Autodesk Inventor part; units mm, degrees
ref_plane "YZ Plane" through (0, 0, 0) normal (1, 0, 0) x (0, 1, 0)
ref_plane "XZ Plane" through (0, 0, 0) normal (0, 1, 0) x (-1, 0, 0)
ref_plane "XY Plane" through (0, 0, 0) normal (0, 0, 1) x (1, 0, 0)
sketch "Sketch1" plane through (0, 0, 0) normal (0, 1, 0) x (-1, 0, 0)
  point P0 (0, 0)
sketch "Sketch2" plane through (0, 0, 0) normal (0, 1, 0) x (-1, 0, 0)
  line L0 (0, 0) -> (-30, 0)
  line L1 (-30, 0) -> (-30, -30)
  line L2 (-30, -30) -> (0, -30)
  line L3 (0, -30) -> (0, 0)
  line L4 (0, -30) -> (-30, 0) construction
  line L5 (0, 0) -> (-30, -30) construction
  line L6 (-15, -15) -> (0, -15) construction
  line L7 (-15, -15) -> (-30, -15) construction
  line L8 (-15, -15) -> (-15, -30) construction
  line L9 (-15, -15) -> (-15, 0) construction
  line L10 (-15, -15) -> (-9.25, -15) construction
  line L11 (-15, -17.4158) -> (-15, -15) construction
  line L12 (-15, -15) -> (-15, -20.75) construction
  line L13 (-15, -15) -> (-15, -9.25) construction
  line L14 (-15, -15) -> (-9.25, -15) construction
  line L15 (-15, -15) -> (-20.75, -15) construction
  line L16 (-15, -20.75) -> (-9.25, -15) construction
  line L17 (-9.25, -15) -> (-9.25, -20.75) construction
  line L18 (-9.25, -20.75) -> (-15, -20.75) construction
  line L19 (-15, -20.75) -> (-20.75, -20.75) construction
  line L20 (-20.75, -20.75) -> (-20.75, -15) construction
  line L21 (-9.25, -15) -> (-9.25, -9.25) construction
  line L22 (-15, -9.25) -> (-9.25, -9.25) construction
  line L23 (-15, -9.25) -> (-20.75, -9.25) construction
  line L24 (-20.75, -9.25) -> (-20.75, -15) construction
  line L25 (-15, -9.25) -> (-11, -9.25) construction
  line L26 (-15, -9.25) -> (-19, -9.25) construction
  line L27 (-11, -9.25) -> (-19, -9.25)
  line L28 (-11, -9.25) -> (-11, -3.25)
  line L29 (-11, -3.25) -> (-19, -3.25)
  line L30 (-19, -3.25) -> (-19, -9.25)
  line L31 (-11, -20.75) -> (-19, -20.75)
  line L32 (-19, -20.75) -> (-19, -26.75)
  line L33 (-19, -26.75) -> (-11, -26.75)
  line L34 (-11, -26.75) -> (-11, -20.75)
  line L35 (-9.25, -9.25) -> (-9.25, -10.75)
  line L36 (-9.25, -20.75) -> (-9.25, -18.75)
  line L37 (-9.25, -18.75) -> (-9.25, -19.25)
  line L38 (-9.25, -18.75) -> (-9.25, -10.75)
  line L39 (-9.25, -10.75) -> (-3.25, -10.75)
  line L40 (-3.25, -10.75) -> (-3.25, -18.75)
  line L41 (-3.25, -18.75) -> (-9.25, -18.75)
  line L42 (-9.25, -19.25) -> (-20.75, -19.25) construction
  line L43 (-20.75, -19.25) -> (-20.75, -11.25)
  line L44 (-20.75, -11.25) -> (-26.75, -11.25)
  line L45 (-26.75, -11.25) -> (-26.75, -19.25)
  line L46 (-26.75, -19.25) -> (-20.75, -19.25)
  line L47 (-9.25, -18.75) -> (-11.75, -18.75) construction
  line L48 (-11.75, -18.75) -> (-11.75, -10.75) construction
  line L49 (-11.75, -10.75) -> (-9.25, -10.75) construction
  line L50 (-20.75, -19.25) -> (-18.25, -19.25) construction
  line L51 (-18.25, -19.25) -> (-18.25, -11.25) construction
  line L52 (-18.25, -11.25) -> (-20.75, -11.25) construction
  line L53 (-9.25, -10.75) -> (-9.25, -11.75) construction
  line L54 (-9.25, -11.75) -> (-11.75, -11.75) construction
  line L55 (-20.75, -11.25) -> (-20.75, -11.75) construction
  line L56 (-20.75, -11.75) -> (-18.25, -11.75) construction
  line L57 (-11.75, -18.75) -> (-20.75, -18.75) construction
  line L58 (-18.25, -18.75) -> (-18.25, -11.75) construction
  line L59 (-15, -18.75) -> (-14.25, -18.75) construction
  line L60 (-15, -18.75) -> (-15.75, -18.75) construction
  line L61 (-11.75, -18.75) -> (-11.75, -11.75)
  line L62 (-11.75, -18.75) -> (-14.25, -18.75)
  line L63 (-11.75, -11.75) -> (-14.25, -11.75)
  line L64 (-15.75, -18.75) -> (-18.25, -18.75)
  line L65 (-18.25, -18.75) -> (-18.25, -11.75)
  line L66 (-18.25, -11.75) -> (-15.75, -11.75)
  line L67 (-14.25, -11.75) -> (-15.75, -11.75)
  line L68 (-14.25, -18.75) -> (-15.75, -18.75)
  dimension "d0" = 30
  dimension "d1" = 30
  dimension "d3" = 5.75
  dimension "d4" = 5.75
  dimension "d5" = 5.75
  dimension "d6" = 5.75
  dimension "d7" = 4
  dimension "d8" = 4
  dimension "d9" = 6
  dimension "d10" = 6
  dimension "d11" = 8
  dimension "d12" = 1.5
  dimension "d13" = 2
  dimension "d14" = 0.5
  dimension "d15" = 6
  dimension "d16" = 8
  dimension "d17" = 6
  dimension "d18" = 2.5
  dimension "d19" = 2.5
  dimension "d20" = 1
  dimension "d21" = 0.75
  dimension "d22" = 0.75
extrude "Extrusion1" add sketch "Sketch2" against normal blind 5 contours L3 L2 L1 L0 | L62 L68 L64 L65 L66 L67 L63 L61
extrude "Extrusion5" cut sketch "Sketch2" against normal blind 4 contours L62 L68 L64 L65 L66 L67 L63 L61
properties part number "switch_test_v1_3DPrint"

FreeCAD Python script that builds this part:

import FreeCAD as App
import Part
import Sketcher
from FreeCAD import Vector

doc = App.newDocument("Part")
body = doc.addObject("PartDesign::Body", "Body")

# Sketch on XZ plane
sketch1 = body.newObject("Sketcher::SketchObject", "Sketch")
sketch1.AttachmentSupport = (doc.getObject("XZ_Plane"), [""])
sketch1.MapMode = "FlatFace"
sketch1.addGeometry([
    Part.LineSegment(Vector(0, -30, 0), Vector(0, 0, 0)),  # 0
    Part.LineSegment(Vector(0, 0, 0), Vector(30, 0, 0)),  # 1
    Part.LineSegment(Vector(30, 0, 0), Vector(30, -30, 0)),  # 2
    Part.LineSegment(Vector(30, -30, 0), Vector(0, -30, 0)),  # 3
    Part.LineSegment(Vector(20.75, -11.25, 0), Vector(20.75, -19.25, 0)),  # 4
    Part.LineSegment(Vector(20.75, -19.25, 0), Vector(26.75, -19.25, 0)),  # 5
    Part.LineSegment(Vector(26.75, -19.25, 0), Vector(26.75, -11.25, 0)),  # 6
    Part.LineSegment(Vector(26.75, -11.25, 0), Vector(20.75, -11.25, 0)),  # 7
    Part.LineSegment(Vector(19, -20.75, 0), Vector(11, -20.75, 0)),  # 8
    Part.LineSegment(Vector(11, -20.75, 0), Vector(11, -26.75, 0)),  # 9
    Part.LineSegment(Vector(11, -26.75, 0), Vector(19, -26.75, 0)),  # 10
    Part.LineSegment(Vector(19, -26.75, 0), Vector(19, -20.75, 0)),  # 11
    Part.LineSegment(Vector(3.25, -18.75, 0), Vector(9.25, -18.75, 0)),  # 12
    Part.LineSegment(Vector(9.25, -18.75, 0), Vector(9.25, -10.75, 0)),  # 13
    Part.LineSegment(Vector(9.25, -10.75, 0), Vector(3.25, -10.75, 0)),  # 14
    Part.LineSegment(Vector(3.25, -10.75, 0), Vector(3.25, -18.75, 0)),  # 15
    Part.LineSegment(Vector(11, -3.25, 0), Vector(11, -9.25, 0)),  # 16
    Part.LineSegment(Vector(11, -9.25, 0), Vector(19, -9.25, 0)),  # 17
    Part.LineSegment(Vector(19, -9.25, 0), Vector(19, -3.25, 0)),  # 18
    Part.LineSegment(Vector(19, -3.25, 0), Vector(11, -3.25, 0)),  # 19
], False)
sketch1.addConstraint([
    Sketcher.Constraint("Coincident", 0, 2, 1, 1),
    Sketcher.Constraint("Coincident", 1, 2, 2, 1),
    Sketcher.Constraint("Coincident", 2, 2, 3, 1),
    Sketcher.Constraint("Coincident", 3, 2, 0, 1),
    Sketcher.Constraint("Coincident", 4, 2, 5, 1),
    Sketcher.Constraint("Coincident", 5, 2, 6, 1),
    Sketcher.Constraint("Coincident", 6, 2, 7, 1),
    Sketcher.Constraint("Coincident", 7, 2, 4, 1),
    Sketcher.Constraint("Coincident", 8, 2, 9, 1),
    Sketcher.Constraint("Coincident", 9, 2, 10, 1),
    Sketcher.Constraint("Coincident", 10, 2, 11, 1),
    Sketcher.Constraint("Coincident", 11, 2, 8, 1),
    Sketcher.Constraint("Coincident", 12, 2, 13, 1),
    Sketcher.Constraint("Coincident", 13, 2, 14, 1),
    Sketcher.Constraint("Coincident", 14, 2, 15, 1),
    Sketcher.Constraint("Coincident", 15, 2, 12, 1),
    Sketcher.Constraint("Coincident", 16, 2, 17, 1),
    Sketcher.Constraint("Coincident", 17, 2, 18, 1),
    Sketcher.Constraint("Coincident", 18, 2, 19, 1),
    Sketcher.Constraint("Coincident", 19, 2, 16, 1),
    Sketcher.Constraint("Vertical", 0),
    Sketcher.Constraint("Horizontal", 1),
    Sketcher.Constraint("Vertical", 2),
    Sketcher.Constraint("Horizontal", 3),
    Sketcher.Constraint("Vertical", 4),
    Sketcher.Constraint("Horizontal", 5),
    Sketcher.Constraint("Vertical", 6),
    Sketcher.Constraint("Horizontal", 7),
    Sketcher.Constraint("Horizontal", 8),
    Sketcher.Constraint("Vertical", 9),
    Sketcher.Constraint("Horizontal", 10),
    Sketcher.Constraint("Vertical", 11),
    Sketcher.Constraint("Horizontal", 12),
    Sketcher.Constraint("Vertical", 13),
    Sketcher.Constraint("Horizontal", 14),
    Sketcher.Constraint("Vertical", 15),
    Sketcher.Constraint("Vertical", 16),
    Sketcher.Constraint("Horizontal", 17),
    Sketcher.Constraint("Vertical", 18),
    Sketcher.Constraint("Horizontal", 19),
    Sketcher.Constraint("Coincident", 0, 2, -1, 1),
    Sketcher.Constraint("Vertical", 9, 2, 16, 2),
    Sketcher.Constraint("Vertical", 11, 2, 17, 2),
    Sketcher.Constraint("Equal", 7, 12),
    Sketcher.Constraint("Equal", 3, 0),
    Sketcher.Constraint("Equal", 19, 4),
    Sketcher.Constraint("Equal", 14, 9),
    Sketcher.Constraint("Equal", 6, 13),
    Sketcher.Constraint("Equal", 11, 16),
    Sketcher.Constraint("DistanceX", 1, 1, 1, 2, 30.0),
    Sketcher.Constraint("DistanceX", 5, 1, 5, 2, 6.0),
    Sketcher.Constraint("DistanceX", 8, 2, 8, 1, 8.0),
    Sketcher.Constraint("DistanceY", 8, 2, 12, 2, 2.0),
    Sketcher.Constraint("DistanceY", 7, 2, 16, 2, 2.0),
    Sketcher.Constraint("DistanceY", 8, 2, 4, 2, 1.5),
    Sketcher.Constraint("DistanceX", -1, 1, 8, 2, 11.0),
    Sketcher.Constraint("DistanceX", 12, 2, 4, 2, 11.5),
    Sketcher.Constraint("DistanceX", -1, 1, 4, 2, 20.75),
    Sketcher.Constraint("DistanceY", 4, 2, -1, 1, 19.25),
])
pad1 = body.newObject("PartDesign::Pad", "Pad")
pad1.Profile = sketch1
pad1.Length = 5

# Sketch on XZ plane
sketch2 = body.newObject("Sketcher::SketchObject", "Sketch001")
sketch2.AttachmentSupport = (doc.getObject("XZ_Plane"), [""])
sketch2.MapMode = "FlatFace"
sketch2.addGeometry([
    Part.LineSegment(Vector(18.25, -18.75, 0), Vector(11.75, -18.75, 0)),
    Part.LineSegment(Vector(11.75, -18.75, 0), Vector(11.75, -11.75, 0)),
    Part.LineSegment(Vector(11.75, -11.75, 0), Vector(18.25, -11.75, 0)),
    Part.LineSegment(Vector(18.25, -11.75, 0), Vector(18.25, -18.75, 0)),
], False)
sketch2.addConstraint([
    Sketcher.Constraint("Coincident", 0, 2, 1, 1),
    Sketcher.Constraint("Coincident", 1, 2, 2, 1),
    Sketcher.Constraint("Coincident", 2, 2, 3, 1),
    Sketcher.Constraint("Coincident", 3, 2, 0, 1),
    Sketcher.Constraint("Horizontal", 0),
    Sketcher.Constraint("Vertical", 1),
    Sketcher.Constraint("Horizontal", 2),
    Sketcher.Constraint("Vertical", 3),
    Sketcher.Constraint("DistanceY", 1, 1, 1, 2, 7.0),
    Sketcher.Constraint("DistanceX", 0, 2, 0, 1, 6.5),
    Sketcher.Constraint("DistanceX", -1, 1, 0, 2, 11.75),
    Sketcher.Constraint("DistanceY", 0, 2, -1, 1, 18.75),
])
pocket1 = body.newObject("PartDesign::Pocket", "Pocket")
pocket1.Profile = sketch2
pocket1.Length = 4
pocket1.Reversed = True

doc.recompute()
